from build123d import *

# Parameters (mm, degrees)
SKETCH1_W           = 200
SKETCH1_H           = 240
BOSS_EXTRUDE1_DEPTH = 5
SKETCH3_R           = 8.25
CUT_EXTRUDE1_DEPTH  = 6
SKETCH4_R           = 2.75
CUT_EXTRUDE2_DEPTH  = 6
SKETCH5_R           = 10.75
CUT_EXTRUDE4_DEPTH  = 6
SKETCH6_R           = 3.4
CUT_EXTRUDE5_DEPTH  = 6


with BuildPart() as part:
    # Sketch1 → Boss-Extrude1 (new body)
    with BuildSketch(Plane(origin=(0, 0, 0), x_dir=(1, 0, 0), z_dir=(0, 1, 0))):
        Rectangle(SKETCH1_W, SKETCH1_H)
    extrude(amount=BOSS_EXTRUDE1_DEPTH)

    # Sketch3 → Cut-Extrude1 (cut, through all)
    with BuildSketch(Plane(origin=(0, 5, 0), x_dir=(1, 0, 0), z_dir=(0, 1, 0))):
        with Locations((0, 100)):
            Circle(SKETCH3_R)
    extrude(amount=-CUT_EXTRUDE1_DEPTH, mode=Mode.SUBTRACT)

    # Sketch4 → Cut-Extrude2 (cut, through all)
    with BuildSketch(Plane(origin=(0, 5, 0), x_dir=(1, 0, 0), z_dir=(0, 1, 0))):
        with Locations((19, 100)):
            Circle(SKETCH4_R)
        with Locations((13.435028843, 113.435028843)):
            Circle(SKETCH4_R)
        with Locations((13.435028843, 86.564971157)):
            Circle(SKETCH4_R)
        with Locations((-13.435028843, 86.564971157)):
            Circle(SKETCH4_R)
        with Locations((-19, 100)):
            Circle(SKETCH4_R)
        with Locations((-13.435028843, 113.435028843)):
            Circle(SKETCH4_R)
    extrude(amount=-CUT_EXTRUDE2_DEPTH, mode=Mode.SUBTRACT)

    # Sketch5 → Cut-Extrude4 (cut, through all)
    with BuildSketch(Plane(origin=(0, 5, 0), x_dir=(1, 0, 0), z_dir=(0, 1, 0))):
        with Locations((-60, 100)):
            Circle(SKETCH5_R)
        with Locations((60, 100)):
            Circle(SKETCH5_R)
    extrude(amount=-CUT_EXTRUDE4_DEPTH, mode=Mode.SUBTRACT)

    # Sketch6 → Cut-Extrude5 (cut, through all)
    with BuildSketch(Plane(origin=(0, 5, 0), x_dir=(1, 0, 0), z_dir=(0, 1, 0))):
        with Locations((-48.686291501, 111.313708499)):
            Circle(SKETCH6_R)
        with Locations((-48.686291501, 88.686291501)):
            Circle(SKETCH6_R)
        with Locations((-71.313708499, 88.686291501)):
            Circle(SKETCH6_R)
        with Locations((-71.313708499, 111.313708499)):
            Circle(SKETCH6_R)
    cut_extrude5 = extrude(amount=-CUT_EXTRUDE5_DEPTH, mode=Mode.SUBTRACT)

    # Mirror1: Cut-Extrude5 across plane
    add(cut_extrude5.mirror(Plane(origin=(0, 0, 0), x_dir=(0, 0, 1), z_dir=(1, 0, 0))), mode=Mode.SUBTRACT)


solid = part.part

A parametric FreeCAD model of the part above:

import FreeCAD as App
import Part
import Sketcher

V = App.Vector
Q = App.Units.Quantity

doc = App.newDocument("Part")
body = doc.addObject("PartDesign::Body", "Body")

# Sketch on XZ plane
sketch1 = body.newObject("Sketcher::SketchObject", "Sketch")
sketch1.AttachmentSupport = (doc.getObject("XZ_Plane"), [""])
sketch1.MapMode = "FlatFace"
sketch1.addGeometry(Part.LineSegment(V(-100, -120, 0), V(-100, 120, 0)), False)
sketch1.addGeometry(Part.LineSegment(V(-100, 120, 0), V(100, 120, 0)), False)
sketch1.addGeometry(Part.LineSegment(V(100, 120, 0), V(100, -120, 0)), False)
sketch1.addGeometry(Part.LineSegment(V(100, -120, 0), V(-100, -120, 0)), False)
sketch1.addConstraint(Sketcher.Constraint("Coincident", 0, 2, 1, 1))
sketch1.addConstraint(Sketcher.Constraint("Coincident", 1, 2, 2, 1))
sketch1.addConstraint(Sketcher.Constraint("Coincident", 2, 2, 3, 1))
sketch1.addConstraint(Sketcher.Constraint("Coincident", 3, 2, 0, 1))
sketch1.addConstraint(Sketcher.Constraint("Vertical", 0))
sketch1.addConstraint(Sketcher.Constraint("Horizontal", 1))
sketch1.addConstraint(Sketcher.Constraint("Vertical", 2))
sketch1.addConstraint(Sketcher.Constraint("Horizontal", 3))
sketch1.addConstraint(Sketcher.Constraint("Symmetric", 0, 2, 2, 2, -1, 1))
sketch1.addConstraint(Sketcher.Constraint("DistanceX", 1, 1, 1, 2, Q("200 mm")))
sketch1.addConstraint(Sketcher.Constraint("DistanceY", 0, 1, 0, 2, Q("240 mm")))
pad1 = body.newObject("PartDesign::Pad", "Pad")
pad1.Profile = sketch1
pad1.Length = 5
pad1.Reversed = True

# Sketch on XZ plane
sketch2 = body.newObject("Sketcher::SketchObject", "Sketch001")
sketch2.AttachmentSupport = (doc.getObject("XZ_Plane"), [""])
sketch2.MapMode = "FlatFace"
sketch2.AttachmentOffset = App.Placement(V(0, 0, -5), App.Rotation())
sketch2.addGeometry(Part.Circle(V(0, -100, 0), V(0, 0, 1), 8), False)
sketch2.addConstraint(Sketcher.Constraint("PointOnObject", 0, 3, -2))
sketch2.addConstraint(Sketcher.Constraint("Diameter", 0, Q("16.5 mm")))
sketch2.addConstraint(Sketcher.Constraint("DistanceY", 0, 3, -1, 1, Q("100 mm")))
pocket1 = body.newObject("PartDesign::Pocket", "Pocket")
pocket1.Profile = sketch2
pocket1.Type = "ThroughAll"
pocket1.Reversed = True

# Sketch on XZ plane
sketch3 = body.newObject("Sketcher::SketchObject", "Sketch002")
sketch3.AttachmentSupport = (doc.getObject("XZ_Plane"), [""])
sketch3.MapMode = "FlatFace"
sketch3.AttachmentOffset = App.Placement(V(0, 0, -5), App.Rotation())
sketch3.addGeometry(Part.Circle(V(19, -100, 0), V(0, 0, 1), 2.8), False)
sketch3.addGeometry(Part.Circle(V(13.4, -113.4, 0), V(0, 0, 1), 2.8), False)
sketch3.addGeometry(Part.Circle(V(13.4, -86.6, 0), V(0, 0, 1), 2.8), False)
sketch3.addGeometry(Part.Circle(V(-13.4, -86.6, 0), V(0, 0, 1), 2.8), False)
sketch3.addGeometry(Part.Circle(V(-19, -100, 0), V(0, 0, 1), 2.8), False)
sketch3.addGeometry(Part.Circle(V(-13.4, -113.4, 0), V(0, 0, 1), 2.8), False)
sketch3.addConstraint(Sketcher.Constraint("Equal", 0, 1))
sketch3.addConstraint(Sketcher.Constraint("Equal", 1, 2))
sketch3.addConstraint(Sketcher.Constraint("Equal", 2, 3))
sketch3.addConstraint(Sketcher.Constraint("Equal", 3, 4))
sketch3.addConstraint(Sketcher.Constraint("Equal", 4, 5))
sketch3.addConstraint(Sketcher.Constraint("Symmetric", 2, 3, 3, 3, -2))
sketch3.addConstraint(Sketcher.Constraint("Symmetric", 0, 3, 4, 3, -2))
sketch3.addConstraint(Sketcher.Constraint("Symmetric", 1, 3, 5, 3, -2))
sketch3.addConstraint(Sketcher.Constraint("Vertical", 1, 3, 2, 3))
sketch3.addConstraint(Sketcher.Constraint("Diameter", 0, Q("5.5 mm")))
sketch3.addConstraint(Sketcher.Constraint("DistanceX", -1, 1, 0, 3, Q("19 mm")))
sketch3.addConstraint(Sketcher.Constraint("DistanceY", 0, 3, -1, 1, Q("100 mm")))
sketch3.addConstraint(Sketcher.Constraint("DistanceX", -1, 1, 1, 3, Q("13.435029 mm")))
sketch3.addConstraint(Sketcher.Constraint("DistanceY", 1, 3, -1, 1, Q("113.435029 mm")))
sketch3.addConstraint(Sketcher.Constraint("DistanceY", 2, 3, -1, 1, Q("86.564971 mm")))
pocket2 = body.newObject("PartDesign::Pocket", "Pocket001")
pocket2.Profile = sketch3
pocket2.Type = "ThroughAll"
pocket2.Reversed = True

# Sketch on XZ plane
sketch4 = body.newObject("Sketcher::SketchObject", "Sketch003")
sketch4.AttachmentSupport = (doc.getObject("XZ_Plane"), [""])
sketch4.MapMode = "FlatFace"
sketch4.AttachmentOffset = App.Placement(V(0, 0, -5), App.Rotation())
sketch4.addGeometry(Part.Circle(V(-60, -100, 0), V(0, 0, 1), 11), False)
sketch4.addGeometry(Part.Circle(V(60, -100, 0), V(0, 0, 1), 11), False)
sketch4.addConstraint(Sketcher.Constraint("Equal", 0, 1))
sketch4.addConstraint(Sketcher.Constraint("Symmetric", 0, 3, 1, 3, -2))
sketch4.addConstraint(Sketcher.Constraint("Diameter", 0, Q("21.5 mm")))
sketch4.addConstraint(Sketcher.Constraint("DistanceX", 0, 3, -1, 1, Q("60 mm")))
sketch4.addConstraint(Sketcher.Constraint("DistanceY", 0, 3, -1, 1, Q("100 mm")))
pocket3 = body.newObject("PartDesign::Pocket", "Pocket002")
pocket3.Profile = sketch4
pocket3.Type = "ThroughAll"
pocket3.Reversed = True

# Sketch on XZ plane
sketch5 = body.newObject("Sketcher::SketchObject", "Sketch004")
sketch5.AttachmentSupport = (doc.getObject("XZ_Plane"), [""])
sketch5.MapMode = "FlatFace"
sketch5.AttachmentOffset = App.Placement(V(0, 0, -5), App.Rotation())
sketch5.addGeometry(Part.Circle(V(-48.7, -111.3, 0), V(0, 0, 1), 3.4), False)
sketch5.addGeometry(Part.Circle(V(-48.7, -88.7, 0), V(0, 0, 1), 3.4), False)
sketch5.addGeometry(Part.Circle(V(-71.3, -88.7, 0), V(0, 0, 1), 3.4), False)
sketch5.addGeometry(Part.Circle(V(-71.3, -111.3, 0), V(0, 0, 1), 3.4), False)
sketch5.addConstraint(Sketcher.Constraint("Equal", 0, 1))
sketch5.addConstraint(Sketcher.Constraint("Equal", 1, 2))
sketch5.addConstraint(Sketcher.Constraint("Equal", 2, 3))
sketch5.addConstraint(Sketcher.Constraint("Horizontal", 1, 3, 2, 3))
sketch5.addConstraint(Sketcher.Constraint("Horizontal", 0, 3, 3, 3))
sketch5.addConstraint(Sketcher.Constraint("Vertical", 0, 3, 1, 3))
sketch5.addConstraint(Sketcher.Constraint("Vertical", 2, 3, 3, 3))
sketch5.addConstraint(Sketcher.Constraint("Diameter", 0, Q("6.8 mm")))
sketch5.addConstraint(Sketcher.Constraint("DistanceX", 0, 3, -1, 1, Q("48.686292 mm")))
sketch5.addConstraint(Sketcher.Constraint("DistanceY", 0, 3, -1, 1, Q("111.313708 mm")))
sketch5.addConstraint(Sketcher.Constraint("DistanceY", 1, 3, -1, 1, Q("88.686292 mm")))
sketch5.addConstraint(Sketcher.Constraint("DistanceX", 2, 3, -1, 1, Q("71.313708 mm")))
pocket4 = body.newObject("PartDesign::Pocket", "Pocket003")
pocket4.Profile = sketch5
pocket4.Type = "ThroughAll"
pocket4.Reversed = True
doc.recompute()

mirrored = body.newObject("PartDesign::Mirrored", "Mirrored")
mirrored.Originals = [pocket4]
mirrored.MirrorPlane = (doc.getObject("YZ_Plane"), [""])
body.Tip = mirrored

doc.recompute()
